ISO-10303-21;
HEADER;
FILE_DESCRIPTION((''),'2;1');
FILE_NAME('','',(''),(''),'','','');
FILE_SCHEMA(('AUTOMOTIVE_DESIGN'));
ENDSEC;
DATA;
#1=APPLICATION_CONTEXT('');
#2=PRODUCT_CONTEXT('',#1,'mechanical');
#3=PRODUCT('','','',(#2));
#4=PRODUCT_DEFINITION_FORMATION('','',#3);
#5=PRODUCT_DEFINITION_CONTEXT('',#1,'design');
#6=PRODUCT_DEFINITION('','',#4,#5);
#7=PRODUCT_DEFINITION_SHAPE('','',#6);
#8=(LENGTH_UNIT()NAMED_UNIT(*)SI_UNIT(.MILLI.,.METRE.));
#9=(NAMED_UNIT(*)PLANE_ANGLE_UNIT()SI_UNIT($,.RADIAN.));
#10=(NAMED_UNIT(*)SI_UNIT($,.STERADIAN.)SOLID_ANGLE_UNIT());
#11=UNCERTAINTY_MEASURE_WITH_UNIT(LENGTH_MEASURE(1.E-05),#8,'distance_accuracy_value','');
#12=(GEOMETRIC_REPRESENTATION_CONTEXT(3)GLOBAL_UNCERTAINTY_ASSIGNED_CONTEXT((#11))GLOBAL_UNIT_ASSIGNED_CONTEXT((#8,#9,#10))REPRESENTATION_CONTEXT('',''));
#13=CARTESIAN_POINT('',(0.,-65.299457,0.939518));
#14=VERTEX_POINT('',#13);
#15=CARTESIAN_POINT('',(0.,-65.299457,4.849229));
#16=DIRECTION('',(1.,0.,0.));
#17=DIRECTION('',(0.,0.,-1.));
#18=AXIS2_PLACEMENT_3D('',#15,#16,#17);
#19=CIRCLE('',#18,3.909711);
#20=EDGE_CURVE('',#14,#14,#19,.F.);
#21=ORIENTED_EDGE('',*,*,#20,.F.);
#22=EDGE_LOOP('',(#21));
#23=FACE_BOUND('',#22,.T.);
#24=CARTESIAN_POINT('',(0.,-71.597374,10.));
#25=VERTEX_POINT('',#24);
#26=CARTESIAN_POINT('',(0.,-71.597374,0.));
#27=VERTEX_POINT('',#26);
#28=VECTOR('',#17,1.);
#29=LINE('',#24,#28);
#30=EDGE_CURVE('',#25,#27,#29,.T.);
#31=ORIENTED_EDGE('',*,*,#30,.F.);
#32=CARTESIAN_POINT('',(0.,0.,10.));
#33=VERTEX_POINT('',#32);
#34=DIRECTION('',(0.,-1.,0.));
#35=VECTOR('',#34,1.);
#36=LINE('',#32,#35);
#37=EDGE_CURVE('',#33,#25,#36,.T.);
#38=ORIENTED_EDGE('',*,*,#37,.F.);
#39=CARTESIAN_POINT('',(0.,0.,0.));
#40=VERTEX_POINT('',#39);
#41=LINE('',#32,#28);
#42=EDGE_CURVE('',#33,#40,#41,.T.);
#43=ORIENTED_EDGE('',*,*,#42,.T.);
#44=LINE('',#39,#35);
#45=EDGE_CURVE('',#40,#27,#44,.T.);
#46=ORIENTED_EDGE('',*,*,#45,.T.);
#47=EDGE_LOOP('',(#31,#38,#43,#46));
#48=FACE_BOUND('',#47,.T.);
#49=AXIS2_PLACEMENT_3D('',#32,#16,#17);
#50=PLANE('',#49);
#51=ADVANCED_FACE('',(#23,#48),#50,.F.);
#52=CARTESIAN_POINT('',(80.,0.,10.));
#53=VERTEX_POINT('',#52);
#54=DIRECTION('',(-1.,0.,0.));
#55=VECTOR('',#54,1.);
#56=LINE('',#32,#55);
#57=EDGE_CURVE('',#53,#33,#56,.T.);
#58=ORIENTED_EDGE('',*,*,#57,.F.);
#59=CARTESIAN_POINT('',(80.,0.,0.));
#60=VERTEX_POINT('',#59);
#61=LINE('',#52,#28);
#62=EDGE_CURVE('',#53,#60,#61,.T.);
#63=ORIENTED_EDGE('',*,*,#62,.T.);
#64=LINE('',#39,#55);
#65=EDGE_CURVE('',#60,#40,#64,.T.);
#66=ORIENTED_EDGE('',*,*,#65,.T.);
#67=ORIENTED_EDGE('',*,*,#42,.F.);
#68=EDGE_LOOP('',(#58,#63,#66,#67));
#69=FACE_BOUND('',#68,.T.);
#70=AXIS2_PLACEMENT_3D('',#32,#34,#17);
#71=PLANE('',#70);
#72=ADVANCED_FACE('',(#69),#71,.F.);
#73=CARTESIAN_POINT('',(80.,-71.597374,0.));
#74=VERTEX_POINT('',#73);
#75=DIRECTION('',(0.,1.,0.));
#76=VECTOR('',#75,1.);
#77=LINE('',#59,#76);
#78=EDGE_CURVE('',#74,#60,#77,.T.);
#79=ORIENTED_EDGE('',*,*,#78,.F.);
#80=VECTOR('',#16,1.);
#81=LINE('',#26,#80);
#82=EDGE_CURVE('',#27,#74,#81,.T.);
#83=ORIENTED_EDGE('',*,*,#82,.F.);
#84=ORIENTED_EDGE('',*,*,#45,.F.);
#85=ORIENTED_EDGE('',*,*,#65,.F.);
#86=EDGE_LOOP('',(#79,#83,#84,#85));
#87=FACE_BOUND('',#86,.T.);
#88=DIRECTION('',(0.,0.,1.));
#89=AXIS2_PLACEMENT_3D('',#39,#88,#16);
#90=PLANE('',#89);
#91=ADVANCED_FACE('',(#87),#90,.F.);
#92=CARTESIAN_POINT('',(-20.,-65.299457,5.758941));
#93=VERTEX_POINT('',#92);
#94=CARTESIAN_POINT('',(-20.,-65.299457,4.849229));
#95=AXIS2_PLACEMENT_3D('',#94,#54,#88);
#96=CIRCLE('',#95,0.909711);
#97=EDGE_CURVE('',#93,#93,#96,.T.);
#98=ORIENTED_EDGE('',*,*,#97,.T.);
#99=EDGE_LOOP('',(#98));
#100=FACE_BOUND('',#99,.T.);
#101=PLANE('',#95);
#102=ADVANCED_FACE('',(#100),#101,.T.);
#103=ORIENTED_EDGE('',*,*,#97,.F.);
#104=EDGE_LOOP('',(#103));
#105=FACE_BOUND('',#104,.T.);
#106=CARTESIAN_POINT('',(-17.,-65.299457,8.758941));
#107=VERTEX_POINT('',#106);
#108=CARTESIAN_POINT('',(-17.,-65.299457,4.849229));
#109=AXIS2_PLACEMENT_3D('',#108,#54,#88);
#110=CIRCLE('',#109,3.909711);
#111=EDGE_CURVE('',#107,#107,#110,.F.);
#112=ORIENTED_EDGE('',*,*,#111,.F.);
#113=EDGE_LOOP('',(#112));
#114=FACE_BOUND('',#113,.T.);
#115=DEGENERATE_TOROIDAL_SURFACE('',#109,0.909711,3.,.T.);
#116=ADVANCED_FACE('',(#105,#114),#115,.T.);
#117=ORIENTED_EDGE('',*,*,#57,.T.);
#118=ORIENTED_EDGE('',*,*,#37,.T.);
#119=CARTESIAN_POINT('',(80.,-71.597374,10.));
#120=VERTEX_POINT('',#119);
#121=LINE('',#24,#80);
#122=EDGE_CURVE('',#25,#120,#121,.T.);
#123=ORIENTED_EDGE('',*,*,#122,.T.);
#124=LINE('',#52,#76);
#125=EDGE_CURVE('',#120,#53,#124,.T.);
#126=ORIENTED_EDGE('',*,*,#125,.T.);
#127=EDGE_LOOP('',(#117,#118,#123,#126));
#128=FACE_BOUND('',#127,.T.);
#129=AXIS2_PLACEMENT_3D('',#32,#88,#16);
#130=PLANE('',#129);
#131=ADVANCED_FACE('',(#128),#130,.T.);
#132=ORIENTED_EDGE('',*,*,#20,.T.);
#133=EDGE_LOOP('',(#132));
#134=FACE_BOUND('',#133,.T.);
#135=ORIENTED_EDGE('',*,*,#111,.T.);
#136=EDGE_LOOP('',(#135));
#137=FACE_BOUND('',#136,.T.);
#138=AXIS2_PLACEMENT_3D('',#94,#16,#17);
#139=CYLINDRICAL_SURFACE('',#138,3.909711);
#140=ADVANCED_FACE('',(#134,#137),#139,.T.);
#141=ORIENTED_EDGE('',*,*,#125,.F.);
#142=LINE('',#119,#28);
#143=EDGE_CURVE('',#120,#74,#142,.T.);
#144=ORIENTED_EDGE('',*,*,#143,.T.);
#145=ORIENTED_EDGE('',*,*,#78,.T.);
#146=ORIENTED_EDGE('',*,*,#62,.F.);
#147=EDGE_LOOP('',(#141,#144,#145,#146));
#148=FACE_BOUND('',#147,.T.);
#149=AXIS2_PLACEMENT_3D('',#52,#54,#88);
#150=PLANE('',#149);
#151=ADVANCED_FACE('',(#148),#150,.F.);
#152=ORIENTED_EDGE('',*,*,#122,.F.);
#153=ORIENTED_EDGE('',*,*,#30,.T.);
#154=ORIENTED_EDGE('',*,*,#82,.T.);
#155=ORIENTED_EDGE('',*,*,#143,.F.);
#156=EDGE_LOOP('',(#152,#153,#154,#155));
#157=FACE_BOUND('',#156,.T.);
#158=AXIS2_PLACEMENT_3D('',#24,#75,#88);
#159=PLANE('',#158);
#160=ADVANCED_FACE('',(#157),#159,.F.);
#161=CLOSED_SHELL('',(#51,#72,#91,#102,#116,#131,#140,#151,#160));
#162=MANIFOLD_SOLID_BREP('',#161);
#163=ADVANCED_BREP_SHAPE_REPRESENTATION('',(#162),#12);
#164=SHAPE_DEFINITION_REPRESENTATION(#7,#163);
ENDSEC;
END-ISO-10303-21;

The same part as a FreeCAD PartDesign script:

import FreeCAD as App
import Part
import Sketcher


def edges_at(feature, points):
    """Names of the edges that pass closest to the given points."""
    edges = feature.Shape.Edges
    near = lambda p: min(range(len(edges)), key=lambda i: edges[i].distToShape(Part.Vertex(*p))[0])
    return sorted({f"Edge{near(p) + 1}" for p in points})

doc = App.newDocument("Part")
body = doc.addObject("PartDesign::Body", "Body")

# Sketch on XY plane
sketch1 = body.newObject("Sketcher::SketchObject", "Sketch")
sketch1.AttachmentSupport = (doc.getObject("XY_Plane"), [""])
sketch1.MapMode = "FlatFace"
sketch1.addGeometry(Part.LineSegment(App.Vector(0, 0, 0), App.Vector(0, -72, 0)), False)
sketch1.addGeometry(Part.LineSegment(App.Vector(0, -72, 0), App.Vector(80, -72, 0)), False)
sketch1.addGeometry(Part.LineSegment(App.Vector(80, -72, 0), App.Vector(80, 0, 0)), False)
sketch1.addGeometry(Part.LineSegment(App.Vector(80, 0, 0), App.Vector(0, 0, 0)), False)
sketch1.addConstraint(Sketcher.Constraint("Coincident", 0, 2, 1, 1))
sketch1.addConstraint(Sketcher.Constraint("Coincident", 1, 2, 2, 1))
sketch1.addConstraint(Sketcher.Constraint("Coincident", 2, 2, 3, 1))
sketch1.addConstraint(Sketcher.Constraint("Coincident", 3, 2, 0, 1))
sketch1.addConstraint(Sketcher.Constraint("Vertical", 0))
sketch1.addConstraint(Sketcher.Constraint("Horizontal", 1))
sketch1.addConstraint(Sketcher.Constraint("Vertical", 2))
sketch1.addConstraint(Sketcher.Constraint("Horizontal", 3))
sketch1.addConstraint(Sketcher.Constraint("Coincident", 3, 2, -1, 1))
sketch1.addConstraint(Sketcher.Constraint("DistanceX", 1, 1, 1, 2, 80.0))
sketch1.addConstraint(Sketcher.Constraint("DistanceY", 0, 2, 0, 1, 71.597374))
pad1 = body.newObject("PartDesign::Pad", "Pad")
pad1.Profile = sketch1
pad1.Length = 10

# Sketch on YZ plane
sketch2 = body.newObject("Sketcher::SketchObject", "Sketch001")
sketch2.AttachmentSupport = (doc.getObject("YZ_Plane"), [""])
sketch2.MapMode = "FlatFace"
sketch2.addGeometry(Part.Circle(App.Vector(-65.3, 4.8, 0), App.Vector(0, 0, 1), 3.9), False)
sketch2.addConstraint(Sketcher.Constraint("Diameter", 0, 7.819423))
sketch2.addConstraint(Sketcher.Constraint("DistanceY", -1, 1, 0, 3, 4.849229))
sketch2.addConstraint(Sketcher.Constraint("DistanceX", 0, 3, -1, 1, 65.299457))
pad2 = body.newObject("PartDesign::Pad", "Pad001")
pad2.Profile = sketch2
pad2.Length = 20
pad2.Reversed = True
doc.recompute()

fillet = body.newObject("PartDesign::Fillet", "Fillet")
fillet.Base = (pad2, edges_at(pad2, [(-20, -65.299, 8.759)]))
fillet.Radius = 3

doc.recompute()
